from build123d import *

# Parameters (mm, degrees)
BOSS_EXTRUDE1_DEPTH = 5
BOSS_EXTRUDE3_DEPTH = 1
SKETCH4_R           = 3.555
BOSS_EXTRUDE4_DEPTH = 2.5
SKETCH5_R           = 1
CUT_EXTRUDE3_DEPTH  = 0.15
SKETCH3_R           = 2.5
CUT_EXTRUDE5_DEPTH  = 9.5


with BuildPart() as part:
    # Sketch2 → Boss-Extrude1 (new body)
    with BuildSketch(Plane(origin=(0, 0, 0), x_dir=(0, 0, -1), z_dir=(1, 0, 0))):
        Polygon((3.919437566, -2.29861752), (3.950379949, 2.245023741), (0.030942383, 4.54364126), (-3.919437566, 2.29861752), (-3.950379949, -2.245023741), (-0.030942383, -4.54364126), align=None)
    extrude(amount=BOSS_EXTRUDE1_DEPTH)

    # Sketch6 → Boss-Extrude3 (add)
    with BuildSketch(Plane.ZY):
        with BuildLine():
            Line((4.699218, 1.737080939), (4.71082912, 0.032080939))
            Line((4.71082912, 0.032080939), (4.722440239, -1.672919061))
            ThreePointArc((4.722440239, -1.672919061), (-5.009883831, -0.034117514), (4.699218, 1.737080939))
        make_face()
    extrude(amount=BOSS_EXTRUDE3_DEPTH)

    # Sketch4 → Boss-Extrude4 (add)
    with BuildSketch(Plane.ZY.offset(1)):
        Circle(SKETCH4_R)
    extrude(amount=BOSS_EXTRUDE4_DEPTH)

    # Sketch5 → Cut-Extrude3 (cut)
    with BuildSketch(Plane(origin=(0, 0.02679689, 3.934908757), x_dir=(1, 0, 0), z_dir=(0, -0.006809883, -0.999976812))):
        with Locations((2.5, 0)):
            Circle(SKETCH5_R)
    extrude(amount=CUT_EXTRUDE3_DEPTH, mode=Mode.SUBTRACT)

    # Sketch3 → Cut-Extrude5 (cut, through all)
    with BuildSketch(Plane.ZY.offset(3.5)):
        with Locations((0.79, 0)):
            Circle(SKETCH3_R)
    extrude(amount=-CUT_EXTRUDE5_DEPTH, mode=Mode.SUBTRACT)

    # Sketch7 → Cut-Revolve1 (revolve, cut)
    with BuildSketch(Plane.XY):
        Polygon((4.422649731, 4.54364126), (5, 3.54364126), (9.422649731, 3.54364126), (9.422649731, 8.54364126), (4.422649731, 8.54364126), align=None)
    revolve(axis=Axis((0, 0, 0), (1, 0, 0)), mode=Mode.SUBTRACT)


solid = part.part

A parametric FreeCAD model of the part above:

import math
import FreeCAD as App
import Part
import Sketcher
Q = App.Units.Quantity


def add_polygon(sketch, points):
    """Adds a closed chain of lines whose ends are joined by coincident constraints."""
    first, n = sketch.GeometryCount, len(points)
    for a, b in zip(points, points[1:] + points[:1]):
        sketch.addGeometry(Part.LineSegment(App.Vector(*a, 0), App.Vector(*b, 0)), False)
    for i in range(n):
        sketch.addConstraint(Sketcher.Constraint("Coincident", first + i, 2, first + (i + 1) % n, 1))

doc = App.newDocument("Part")
body = doc.addObject("PartDesign::Body", "Body")

# Sketch on YZ plane
sketch1 = doc.addObject("Sketcher::SketchObject", "Sketch")
body.addObject(sketch1)
sketch1.AttachmentSupport = (doc.YZ_Plane, [""])
sketch1.MapMode = "FlatFace"
add_polygon(sketch1, [(-2.3, -3.9), (2.2, -4), (4.5, 0), (2.3, 3.9), (-2.2, 4), (-4.5, 0)])  # lines 0-5
sketch1.addConstraint(Sketcher.Constraint("Symmetric", 0, 2, 3, 2, -1, 1))
sketch1.addConstraint(Sketcher.Constraint("Symmetric", 1, 2, 4, 2, -1, 1))
sketch1.addConstraint(Sketcher.Constraint("Symmetric", 2, 2, 5, 2, -1, 1))
sketch1.addConstraint(Sketcher.Constraint("Equal", 0, 1))
sketch1.addConstraint(Sketcher.Constraint("Equal", 1, 2))
sketch1.addConstraint(Sketcher.Constraint("DistanceY", 0, 2, -1, 1, Q("3.95038 mm")))
sketch1.addConstraint(Sketcher.Constraint("DistanceX", -1, 1, 1, 2, Q("4.543641 mm")))
sketch1.addConstraint(Sketcher.Constraint("DistanceY", 1, 2, 2, 2, Q("3.95038 mm")))
sketch1.addConstraint(Sketcher.Constraint("DistanceX", 3, 2, 2, 2, Q("4.543641 mm")))
pad1 = doc.addObject("PartDesign::Pad", "Pad")
body.addObject(pad1)
pad1.Profile = sketch1
pad1.Length = 5

# Sketch on YZ plane
sketch2 = doc.addObject("Sketcher::SketchObject", "Sketch001")
body.addObject(sketch2)
sketch2.AttachmentSupport = (doc.YZ_Plane, [""])
sketch2.MapMode = "FlatFace"
sketch2.addGeometry(Part.LineSegment(App.Vector(0, 4.7, 0), App.Vector(1.7, 4.7, 0)), False)
sketch2.addGeometry(Part.ArcOfCircle(Part.Circle(App.Vector(0, 0, 0), App.Vector(0, 0, 1), 5), math.radians(110), math.radians(430)), False)
sketch2.addGeometry(Part.LineSegment(App.Vector(-1.7, 4.7, 0), App.Vector(0, 4.7, 0)), False)
sketch2.addConstraint(Sketcher.Constraint("Coincident", 0, 2, 1, 2))
sketch2.addConstraint(Sketcher.Constraint("Coincident", 1, 1, 2, 1))
sketch2.addConstraint(Sketcher.Constraint("Coincident", 2, 2, 0, 1))
sketch2.addConstraint(Sketcher.Constraint("Coincident", 1, 3, -1, 1))
sketch2.addConstraint(Sketcher.Constraint("Parallel", 0, 2))
sketch2.addConstraint(Sketcher.Constraint("Equal", 0, 2))
sketch2.addConstraint(Sketcher.Constraint("Radius", 1, Q("5.01 mm")))
sketch2.addConstraint(Sketcher.Constraint("DistanceX", 1, 1, 0, 2, Q("3.41 mm")))
sketch2.addConstraint(Sketcher.Constraint("DistanceX", -1, 1, 0, 2, Q("1.737081 mm")))
pad2 = doc.addObject("PartDesign::Pad", "Pad001")
body.addObject(pad2)
pad2.Profile = sketch2
pad2.Length = 1
pad2.Reversed = True

# Sketch on YZ plane
sketch3 = doc.addObject("Sketcher::SketchObject", "Sketch002")
body.addObject(sketch3)
sketch3.AttachmentSupport = (doc.YZ_Plane, [""])
sketch3.MapMode = "FlatFace"
sketch3.AttachmentOffset = App.Placement(App.Vector(0, 0, -1), App.Rotation())
sketch3.addGeometry(Part.Circle(App.Vector(0, 0, 0), App.Vector(0, 0, 1), 3.6), False)
sketch3.addConstraint(Sketcher.Constraint("Coincident", 0, 3, -1, 1))
sketch3.addConstraint(Sketcher.Constraint("Diameter", 0, Q("7.11 mm")))
pad3 = doc.addObject("PartDesign::Pad", "Pad002")
body.addObject(pad3)
pad3.Profile = sketch3
pad3.Length = 2.5
pad3.Reversed = True

# Sketch on an angled plane
sketch4 = doc.addObject("Sketcher::SketchObject", "Sketch003")
body.addObject(sketch4)
sketch4.Placement = App.Placement(App.Vector(0, 0.026797, 3.934909), App.Rotation(App.Vector(1, 0, 0), App.Vector(0, -0.999976812, 0.006809883), App.Vector(0, -0.006809883, -0.999976812), "ZXY"))
sketch4.addGeometry(Part.Circle(App.Vector(2.5, 0, 0), App.Vector(0, 0, 1), 1), False)
sketch4.addConstraint(Sketcher.Constraint("PointOnObject", 0, 3, -1))
sketch4.addConstraint(Sketcher.Constraint("Diameter", 0, Q("2 mm")))
sketch4.addConstraint(Sketcher.Constraint("DistanceX", -1, 1, 0, 3, Q("2.5 mm")))
pocket1 = doc.addObject("PartDesign::Pocket", "Pocket")
body.addObject(pocket1)
pocket1.Profile = sketch4
pocket1.Length = 0.15
pocket1.Reversed = True

# Sketch on YZ plane
sketch5 = doc.addObject("Sketcher::SketchObject", "Sketch004")
body.addObject(sketch5)
sketch5.AttachmentSupport = (doc.YZ_Plane, [""])
sketch5.MapMode = "FlatFace"
sketch5.AttachmentOffset = App.Placement(App.Vector(0, 0, -3.5), App.Rotation())
sketch5.addGeometry(Part.Circle(App.Vector(0, 0.8, 0), App.Vector(0, 0, 1), 2.5), False)
sketch5.addConstraint(Sketcher.Constraint("PointOnObject", 0, 3, -2))
sketch5.addConstraint(Sketcher.Constraint("Diameter", 0, Q("5 mm")))
sketch5.addConstraint(Sketcher.Constraint("DistanceY", -1, 1, 0, 3, Q("0.79 mm")))
pocket2 = doc.addObject("PartDesign::Pocket", "Pocket001")
body.addObject(pocket2)
pocket2.Profile = sketch5
pocket2.Type = "ThroughAll"
pocket2.Reversed = True

# Sketch on XY plane
sketch6 = doc.addObject("Sketcher::SketchObject", "Sketch005")
body.addObject(sketch6)
sketch6.AttachmentSupport = (doc.XY_Plane, [""])
sketch6.MapMode = "FlatFace"
add_polygon(sketch6, [(4.4, 4.5), (5, 3.5), (9.4, 3.5), (9.4, 8.5), (4.4, 8.5)])  # lines 0-4
sketch6.addConstraint(Sketcher.Constraint("Horizontal", 1))
sketch6.addConstraint(Sketcher.Constraint("Vertical", 2))
sketch6.addConstraint(Sketcher.Constraint("Horizontal", 3))
sketch6.addConstraint(Sketcher.Constraint("Vertical", 4))
sketch6.addConstraint(Sketcher.Constraint("Equal", 3, 2))
sketch6.addConstraint(Sketcher.Constraint("DistanceX", 3, 2, 3, 1, Q("5 mm")))
sketch6.addConstraint(Sketcher.Constraint("DistanceY", 4, 2, 4, 1, Q("4 mm")))
sketch6.addConstraint(Sketcher.Constraint("Angle", 0, Q("-60 deg")))
sketch6.addConstraint(Sketcher.Constraint("DistanceX", -1, 1, 0, 2, Q("5 mm")))
sketch6.addConstraint(Sketcher.Constraint("DistanceY", -1, 1, 0, 2, Q("3.543641 mm")))
groove = doc.addObject("PartDesign::Groove", "Groove")
body.addObject(groove)
groove.Profile = sketch6
groove.ReferenceAxis = (sketch6, ["H_Axis"])
groove.Angle = 360

doc.recompute()
